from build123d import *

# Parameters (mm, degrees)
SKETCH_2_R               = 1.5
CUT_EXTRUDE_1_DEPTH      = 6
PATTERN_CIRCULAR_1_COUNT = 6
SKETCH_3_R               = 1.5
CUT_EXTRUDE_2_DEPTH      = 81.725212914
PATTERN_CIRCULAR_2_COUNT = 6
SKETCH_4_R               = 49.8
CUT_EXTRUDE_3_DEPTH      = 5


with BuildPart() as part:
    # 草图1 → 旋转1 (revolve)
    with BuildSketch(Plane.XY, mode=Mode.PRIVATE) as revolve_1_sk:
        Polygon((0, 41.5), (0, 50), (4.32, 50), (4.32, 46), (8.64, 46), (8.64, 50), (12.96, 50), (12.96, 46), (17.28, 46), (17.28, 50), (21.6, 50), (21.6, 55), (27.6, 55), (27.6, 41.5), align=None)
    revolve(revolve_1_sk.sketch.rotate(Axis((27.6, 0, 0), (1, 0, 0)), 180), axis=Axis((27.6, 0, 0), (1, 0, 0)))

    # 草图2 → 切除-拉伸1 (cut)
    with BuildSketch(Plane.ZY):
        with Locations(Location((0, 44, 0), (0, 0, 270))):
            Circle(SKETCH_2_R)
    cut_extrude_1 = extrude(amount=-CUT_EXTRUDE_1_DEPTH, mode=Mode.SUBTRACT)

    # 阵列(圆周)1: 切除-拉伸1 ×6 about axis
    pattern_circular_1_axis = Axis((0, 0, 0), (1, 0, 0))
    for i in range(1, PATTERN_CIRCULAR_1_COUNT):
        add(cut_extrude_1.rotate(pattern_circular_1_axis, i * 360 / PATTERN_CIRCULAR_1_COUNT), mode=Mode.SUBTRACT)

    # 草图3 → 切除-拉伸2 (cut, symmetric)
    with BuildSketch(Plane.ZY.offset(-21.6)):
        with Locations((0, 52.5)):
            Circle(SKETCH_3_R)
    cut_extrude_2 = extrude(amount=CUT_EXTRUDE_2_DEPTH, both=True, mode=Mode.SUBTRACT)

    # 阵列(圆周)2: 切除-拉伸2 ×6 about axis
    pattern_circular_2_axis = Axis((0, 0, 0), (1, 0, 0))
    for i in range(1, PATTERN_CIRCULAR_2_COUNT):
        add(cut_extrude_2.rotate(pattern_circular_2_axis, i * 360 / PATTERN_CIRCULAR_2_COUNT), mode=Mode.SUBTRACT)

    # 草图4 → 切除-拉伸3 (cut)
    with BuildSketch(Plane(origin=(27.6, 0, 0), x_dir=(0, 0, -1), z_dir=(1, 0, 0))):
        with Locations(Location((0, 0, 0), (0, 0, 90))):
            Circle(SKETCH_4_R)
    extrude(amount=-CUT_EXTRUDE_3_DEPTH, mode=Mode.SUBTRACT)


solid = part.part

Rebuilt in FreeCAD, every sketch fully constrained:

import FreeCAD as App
import Part
import Sketcher
from FreeCAD import Vector

doc = App.newDocument("Part")
body = doc.addObject("PartDesign::Body", "Body")

# Sketch on XY plane
sketch1 = doc.addObject("Sketcher::SketchObject", "Sketch")
body.addObject(sketch1)
sketch1.AttachmentSupport = (doc.XY_Plane, [""])
sketch1.MapMode = "FlatFace"
sketch1.addGeometry(Part.LineSegment(Vector(0, 50, 0), Vector(0, 41.5, 0)), False)
sketch1.addGeometry(Part.LineSegment(Vector(0, 41.5, 0), Vector(27.6, 41.5, 0)), False)
sketch1.addGeometry(Part.LineSegment(Vector(27.6, 41.5, 0), Vector(27.6, 55, 0)), False)
sketch1.addGeometry(Part.LineSegment(Vector(27.6, 55, 0), Vector(21.6, 55, 0)), False)
sketch1.addGeometry(Part.LineSegment(Vector(21.6, 55, 0), Vector(21.6, 50, 0)), False)
sketch1.addGeometry(Part.LineSegment(Vector(21.6, 50, 0), Vector(17.3, 50, 0)), False)
sketch1.addGeometry(Part.LineSegment(Vector(17.3, 50, 0), Vector(17.3, 46, 0)), False)
sketch1.addGeometry(Part.LineSegment(Vector(17.3, 46, 0), Vector(13, 46, 0)), False)
sketch1.addGeometry(Part.LineSegment(Vector(13, 46, 0), Vector(13, 50, 0)), False)
sketch1.addGeometry(Part.LineSegment(Vector(13, 50, 0), Vector(8.6, 50, 0)), False)
sketch1.addGeometry(Part.LineSegment(Vector(8.6, 50, 0), Vector(8.6, 46, 0)), False)
sketch1.addGeometry(Part.LineSegment(Vector(8.6, 46, 0), Vector(4.3, 46, 0)), False)
sketch1.addGeometry(Part.LineSegment(Vector(4.3, 46, 0), Vector(4.3, 50, 0)), False)
sketch1.addGeometry(Part.LineSegment(Vector(4.3, 50, 0), Vector(0, 50, 0)), False)
sketch1.addConstraint(Sketcher.Constraint("Coincident", 0, 2, 1, 1))
sketch1.addConstraint(Sketcher.Constraint("Coincident", 1, 2, 2, 1))
sketch1.addConstraint(Sketcher.Constraint("Coincident", 2, 2, 3, 1))
sketch1.addConstraint(Sketcher.Constraint("Coincident", 3, 2, 4, 1))
sketch1.addConstraint(Sketcher.Constraint("Coincident", 4, 2, 5, 1))
sketch1.addConstraint(Sketcher.Constraint("Coincident", 5, 2, 6, 1))
sketch1.addConstraint(Sketcher.Constraint("Coincident", 6, 2, 7, 1))
sketch1.addConstraint(Sketcher.Constraint("Coincident", 7, 2, 8, 1))
sketch1.addConstraint(Sketcher.Constraint("Coincident", 8, 2, 9, 1))
sketch1.addConstraint(Sketcher.Constraint("Coincident", 9, 2, 10, 1))
sketch1.addConstraint(Sketcher.Constraint("Coincident", 10, 2, 11, 1))
sketch1.addConstraint(Sketcher.Constraint("Coincident", 11, 2, 12, 1))
sketch1.addConstraint(Sketcher.Constraint("Coincident", 12, 2, 13, 1))
sketch1.addConstraint(Sketcher.Constraint("Coincident", 13, 2, 0, 1))
sketch1.addConstraint(Sketcher.Constraint("Vertical", 0))
sketch1.addConstraint(Sketcher.Constraint("Horizontal", 1))
sketch1.addConstraint(Sketcher.Constraint("Vertical", 2))
sketch1.addConstraint(Sketcher.Constraint("Horizontal", 3))
sketch1.addConstraint(Sketcher.Constraint("Vertical", 4))
sketch1.addConstraint(Sketcher.Constraint("Horizontal", 5))
sketch1.addConstraint(Sketcher.Constraint("Vertical", 6))
sketch1.addConstraint(Sketcher.Constraint("Horizontal", 7))
sketch1.addConstraint(Sketcher.Constraint("Vertical", 8))
sketch1.addConstraint(Sketcher.Constraint("Horizontal", 9))
sketch1.addConstraint(Sketcher.Constraint("Vertical", 10))
sketch1.addConstraint(Sketcher.Constraint("Horizontal", 11))
sketch1.addConstraint(Sketcher.Constraint("Vertical", 12))
sketch1.addConstraint(Sketcher.Constraint("Horizontal", 13))
sketch1.addConstraint(Sketcher.Constraint("PointOnObject", 0, 2, -2))
sketch1.addConstraint(Sketcher.Constraint("Horizontal", 5, 2, 8, 2))
sketch1.addConstraint(Sketcher.Constraint("Horizontal", 7, 2, 10, 2))
sketch1.addConstraint(Sketcher.Constraint("Horizontal", 9, 2, 12, 2))
sketch1.addConstraint(Sketcher.Constraint("Equal", 5, 7))
sketch1.addConstraint(Sketcher.Constraint("Equal", 7, 9))
sketch1.addConstraint(Sketcher.Constraint("Equal", 9, 11))
sketch1.addConstraint(Sketcher.Constraint("Equal", 11, 13))
sketch1.addConstraint(Sketcher.Constraint("DistanceX", 3, 2, 3, 1, 6.0))
sketch1.addConstraint(Sketcher.Constraint("DistanceY", 4, 2, 4, 1, 5.0))
sketch1.addConstraint(Sketcher.Constraint("DistanceY", 6, 2, 6, 1, 4.0))
sketch1.addConstraint(Sketcher.Constraint("DistanceX", 1, 1, 1, 2, 27.6))
sketch1.addConstraint(Sketcher.Constraint("DistanceY", 0, 2, 0, 1, 8.5))
sketch1.addConstraint(Sketcher.Constraint("DistanceY", -1, 1, 2, 2, 55.0))
revolution = doc.addObject("PartDesign::Revolution", "Revolution")
body.addObject(revolution)
revolution.Profile = sketch1
revolution.ReferenceAxis = (sketch1, ["H_Axis"])
revolution.Angle = 360

# Sketch on YZ plane
sketch2 = doc.addObject("Sketcher::SketchObject", "Sketch001")
body.addObject(sketch2)
sketch2.AttachmentSupport = (doc.YZ_Plane, [""])
sketch2.MapMode = "FlatFace"
sketch2.addGeometry(Part.Circle(Vector(44, 0, 0), Vector(0, 0, 1), 1.5), False)
sketch2.addConstraint(Sketcher.Constraint("PointOnObject", 0, 3, -1))
sketch2.addConstraint(Sketcher.Constraint("Diameter", 0, 3.0))
sketch2.addConstraint(Sketcher.Constraint("DistanceX", -1, 1, 0, 3, 44.0))
pocket1 = doc.addObject("PartDesign::Pocket", "Pocket")
body.addObject(pocket1)
pocket1.Profile = sketch2
pocket1.Length = 6
pocket1.Reversed = True
doc.recompute()

polarpattern = doc.addObject("PartDesign::PolarPattern", "PolarPattern")
body.addObject(polarpattern)
polarpattern.Originals = [pocket1]
polarpattern.Axis = (doc.X_Axis, [""])
polarpattern.Angle = 360
polarpattern.Occurrences = 6
body.Tip = polarpattern

# Sketch on YZ plane
sketch3 = doc.addObject("Sketcher::SketchObject", "Sketch002")
body.addObject(sketch3)
sketch3.AttachmentSupport = (doc.YZ_Plane, [""])
sketch3.MapMode = "FlatFace"
sketch3.AttachmentOffset = App.Placement(Vector(0, 0, 21.6), App.Rotation())
sketch3.addGeometry(Part.Circle(Vector(52.5, 0, 0), Vector(0, 0, 1), 1.5), False)
sketch3.addConstraint(Sketcher.Constraint("PointOnObject", 0, 3, -1))
sketch3.addConstraint(Sketcher.Constraint("Diameter", 0, 3.0))
sketch3.addConstraint(Sketcher.Constraint("DistanceX", -1, 1, 0, 3, 52.5))
pocket2 = doc.addObject("PartDesign::Pocket", "Pocket001")
body.addObject(pocket2)
pocket2.Profile = sketch3
pocket2.Length = 163.450426
pocket2.Midplane = True
doc.recompute()

polarpattern2 = doc.addObject("PartDesign::PolarPattern", "PolarPattern001")
body.addObject(polarpattern2)
polarpattern2.Originals = [pocket2]
polarpattern2.Axis = (doc.X_Axis, [""])
polarpattern2.Angle = 360
polarpattern2.Occurrences = 6
body.Tip = polarpattern2

# Sketch on YZ plane
sketch4 = doc.addObject("Sketcher::SketchObject", "Sketch003")
body.addObject(sketch4)
sketch4.AttachmentSupport = (doc.YZ_Plane, [""])
sketch4.MapMode = "FlatFace"
sketch4.AttachmentOffset = App.Placement(Vector(0, 0, 27.6), App.Rotation())
sketch4.addGeometry(Part.Circle(Vector(0, 0, 0), Vector(0, 0, 1), 50), False)
sketch4.addConstraint(Sketcher.Constraint("Coincident", 0, 3, -1, 1))
sketch4.addConstraint(Sketcher.Constraint("Diameter", 0, 99.6))
pocket3 = doc.addObject("PartDesign::Pocket", "Pocket002")
body.addObject(pocket3)
pocket3.Profile = sketch4
pocket3.Length = 5

doc.recompute()
